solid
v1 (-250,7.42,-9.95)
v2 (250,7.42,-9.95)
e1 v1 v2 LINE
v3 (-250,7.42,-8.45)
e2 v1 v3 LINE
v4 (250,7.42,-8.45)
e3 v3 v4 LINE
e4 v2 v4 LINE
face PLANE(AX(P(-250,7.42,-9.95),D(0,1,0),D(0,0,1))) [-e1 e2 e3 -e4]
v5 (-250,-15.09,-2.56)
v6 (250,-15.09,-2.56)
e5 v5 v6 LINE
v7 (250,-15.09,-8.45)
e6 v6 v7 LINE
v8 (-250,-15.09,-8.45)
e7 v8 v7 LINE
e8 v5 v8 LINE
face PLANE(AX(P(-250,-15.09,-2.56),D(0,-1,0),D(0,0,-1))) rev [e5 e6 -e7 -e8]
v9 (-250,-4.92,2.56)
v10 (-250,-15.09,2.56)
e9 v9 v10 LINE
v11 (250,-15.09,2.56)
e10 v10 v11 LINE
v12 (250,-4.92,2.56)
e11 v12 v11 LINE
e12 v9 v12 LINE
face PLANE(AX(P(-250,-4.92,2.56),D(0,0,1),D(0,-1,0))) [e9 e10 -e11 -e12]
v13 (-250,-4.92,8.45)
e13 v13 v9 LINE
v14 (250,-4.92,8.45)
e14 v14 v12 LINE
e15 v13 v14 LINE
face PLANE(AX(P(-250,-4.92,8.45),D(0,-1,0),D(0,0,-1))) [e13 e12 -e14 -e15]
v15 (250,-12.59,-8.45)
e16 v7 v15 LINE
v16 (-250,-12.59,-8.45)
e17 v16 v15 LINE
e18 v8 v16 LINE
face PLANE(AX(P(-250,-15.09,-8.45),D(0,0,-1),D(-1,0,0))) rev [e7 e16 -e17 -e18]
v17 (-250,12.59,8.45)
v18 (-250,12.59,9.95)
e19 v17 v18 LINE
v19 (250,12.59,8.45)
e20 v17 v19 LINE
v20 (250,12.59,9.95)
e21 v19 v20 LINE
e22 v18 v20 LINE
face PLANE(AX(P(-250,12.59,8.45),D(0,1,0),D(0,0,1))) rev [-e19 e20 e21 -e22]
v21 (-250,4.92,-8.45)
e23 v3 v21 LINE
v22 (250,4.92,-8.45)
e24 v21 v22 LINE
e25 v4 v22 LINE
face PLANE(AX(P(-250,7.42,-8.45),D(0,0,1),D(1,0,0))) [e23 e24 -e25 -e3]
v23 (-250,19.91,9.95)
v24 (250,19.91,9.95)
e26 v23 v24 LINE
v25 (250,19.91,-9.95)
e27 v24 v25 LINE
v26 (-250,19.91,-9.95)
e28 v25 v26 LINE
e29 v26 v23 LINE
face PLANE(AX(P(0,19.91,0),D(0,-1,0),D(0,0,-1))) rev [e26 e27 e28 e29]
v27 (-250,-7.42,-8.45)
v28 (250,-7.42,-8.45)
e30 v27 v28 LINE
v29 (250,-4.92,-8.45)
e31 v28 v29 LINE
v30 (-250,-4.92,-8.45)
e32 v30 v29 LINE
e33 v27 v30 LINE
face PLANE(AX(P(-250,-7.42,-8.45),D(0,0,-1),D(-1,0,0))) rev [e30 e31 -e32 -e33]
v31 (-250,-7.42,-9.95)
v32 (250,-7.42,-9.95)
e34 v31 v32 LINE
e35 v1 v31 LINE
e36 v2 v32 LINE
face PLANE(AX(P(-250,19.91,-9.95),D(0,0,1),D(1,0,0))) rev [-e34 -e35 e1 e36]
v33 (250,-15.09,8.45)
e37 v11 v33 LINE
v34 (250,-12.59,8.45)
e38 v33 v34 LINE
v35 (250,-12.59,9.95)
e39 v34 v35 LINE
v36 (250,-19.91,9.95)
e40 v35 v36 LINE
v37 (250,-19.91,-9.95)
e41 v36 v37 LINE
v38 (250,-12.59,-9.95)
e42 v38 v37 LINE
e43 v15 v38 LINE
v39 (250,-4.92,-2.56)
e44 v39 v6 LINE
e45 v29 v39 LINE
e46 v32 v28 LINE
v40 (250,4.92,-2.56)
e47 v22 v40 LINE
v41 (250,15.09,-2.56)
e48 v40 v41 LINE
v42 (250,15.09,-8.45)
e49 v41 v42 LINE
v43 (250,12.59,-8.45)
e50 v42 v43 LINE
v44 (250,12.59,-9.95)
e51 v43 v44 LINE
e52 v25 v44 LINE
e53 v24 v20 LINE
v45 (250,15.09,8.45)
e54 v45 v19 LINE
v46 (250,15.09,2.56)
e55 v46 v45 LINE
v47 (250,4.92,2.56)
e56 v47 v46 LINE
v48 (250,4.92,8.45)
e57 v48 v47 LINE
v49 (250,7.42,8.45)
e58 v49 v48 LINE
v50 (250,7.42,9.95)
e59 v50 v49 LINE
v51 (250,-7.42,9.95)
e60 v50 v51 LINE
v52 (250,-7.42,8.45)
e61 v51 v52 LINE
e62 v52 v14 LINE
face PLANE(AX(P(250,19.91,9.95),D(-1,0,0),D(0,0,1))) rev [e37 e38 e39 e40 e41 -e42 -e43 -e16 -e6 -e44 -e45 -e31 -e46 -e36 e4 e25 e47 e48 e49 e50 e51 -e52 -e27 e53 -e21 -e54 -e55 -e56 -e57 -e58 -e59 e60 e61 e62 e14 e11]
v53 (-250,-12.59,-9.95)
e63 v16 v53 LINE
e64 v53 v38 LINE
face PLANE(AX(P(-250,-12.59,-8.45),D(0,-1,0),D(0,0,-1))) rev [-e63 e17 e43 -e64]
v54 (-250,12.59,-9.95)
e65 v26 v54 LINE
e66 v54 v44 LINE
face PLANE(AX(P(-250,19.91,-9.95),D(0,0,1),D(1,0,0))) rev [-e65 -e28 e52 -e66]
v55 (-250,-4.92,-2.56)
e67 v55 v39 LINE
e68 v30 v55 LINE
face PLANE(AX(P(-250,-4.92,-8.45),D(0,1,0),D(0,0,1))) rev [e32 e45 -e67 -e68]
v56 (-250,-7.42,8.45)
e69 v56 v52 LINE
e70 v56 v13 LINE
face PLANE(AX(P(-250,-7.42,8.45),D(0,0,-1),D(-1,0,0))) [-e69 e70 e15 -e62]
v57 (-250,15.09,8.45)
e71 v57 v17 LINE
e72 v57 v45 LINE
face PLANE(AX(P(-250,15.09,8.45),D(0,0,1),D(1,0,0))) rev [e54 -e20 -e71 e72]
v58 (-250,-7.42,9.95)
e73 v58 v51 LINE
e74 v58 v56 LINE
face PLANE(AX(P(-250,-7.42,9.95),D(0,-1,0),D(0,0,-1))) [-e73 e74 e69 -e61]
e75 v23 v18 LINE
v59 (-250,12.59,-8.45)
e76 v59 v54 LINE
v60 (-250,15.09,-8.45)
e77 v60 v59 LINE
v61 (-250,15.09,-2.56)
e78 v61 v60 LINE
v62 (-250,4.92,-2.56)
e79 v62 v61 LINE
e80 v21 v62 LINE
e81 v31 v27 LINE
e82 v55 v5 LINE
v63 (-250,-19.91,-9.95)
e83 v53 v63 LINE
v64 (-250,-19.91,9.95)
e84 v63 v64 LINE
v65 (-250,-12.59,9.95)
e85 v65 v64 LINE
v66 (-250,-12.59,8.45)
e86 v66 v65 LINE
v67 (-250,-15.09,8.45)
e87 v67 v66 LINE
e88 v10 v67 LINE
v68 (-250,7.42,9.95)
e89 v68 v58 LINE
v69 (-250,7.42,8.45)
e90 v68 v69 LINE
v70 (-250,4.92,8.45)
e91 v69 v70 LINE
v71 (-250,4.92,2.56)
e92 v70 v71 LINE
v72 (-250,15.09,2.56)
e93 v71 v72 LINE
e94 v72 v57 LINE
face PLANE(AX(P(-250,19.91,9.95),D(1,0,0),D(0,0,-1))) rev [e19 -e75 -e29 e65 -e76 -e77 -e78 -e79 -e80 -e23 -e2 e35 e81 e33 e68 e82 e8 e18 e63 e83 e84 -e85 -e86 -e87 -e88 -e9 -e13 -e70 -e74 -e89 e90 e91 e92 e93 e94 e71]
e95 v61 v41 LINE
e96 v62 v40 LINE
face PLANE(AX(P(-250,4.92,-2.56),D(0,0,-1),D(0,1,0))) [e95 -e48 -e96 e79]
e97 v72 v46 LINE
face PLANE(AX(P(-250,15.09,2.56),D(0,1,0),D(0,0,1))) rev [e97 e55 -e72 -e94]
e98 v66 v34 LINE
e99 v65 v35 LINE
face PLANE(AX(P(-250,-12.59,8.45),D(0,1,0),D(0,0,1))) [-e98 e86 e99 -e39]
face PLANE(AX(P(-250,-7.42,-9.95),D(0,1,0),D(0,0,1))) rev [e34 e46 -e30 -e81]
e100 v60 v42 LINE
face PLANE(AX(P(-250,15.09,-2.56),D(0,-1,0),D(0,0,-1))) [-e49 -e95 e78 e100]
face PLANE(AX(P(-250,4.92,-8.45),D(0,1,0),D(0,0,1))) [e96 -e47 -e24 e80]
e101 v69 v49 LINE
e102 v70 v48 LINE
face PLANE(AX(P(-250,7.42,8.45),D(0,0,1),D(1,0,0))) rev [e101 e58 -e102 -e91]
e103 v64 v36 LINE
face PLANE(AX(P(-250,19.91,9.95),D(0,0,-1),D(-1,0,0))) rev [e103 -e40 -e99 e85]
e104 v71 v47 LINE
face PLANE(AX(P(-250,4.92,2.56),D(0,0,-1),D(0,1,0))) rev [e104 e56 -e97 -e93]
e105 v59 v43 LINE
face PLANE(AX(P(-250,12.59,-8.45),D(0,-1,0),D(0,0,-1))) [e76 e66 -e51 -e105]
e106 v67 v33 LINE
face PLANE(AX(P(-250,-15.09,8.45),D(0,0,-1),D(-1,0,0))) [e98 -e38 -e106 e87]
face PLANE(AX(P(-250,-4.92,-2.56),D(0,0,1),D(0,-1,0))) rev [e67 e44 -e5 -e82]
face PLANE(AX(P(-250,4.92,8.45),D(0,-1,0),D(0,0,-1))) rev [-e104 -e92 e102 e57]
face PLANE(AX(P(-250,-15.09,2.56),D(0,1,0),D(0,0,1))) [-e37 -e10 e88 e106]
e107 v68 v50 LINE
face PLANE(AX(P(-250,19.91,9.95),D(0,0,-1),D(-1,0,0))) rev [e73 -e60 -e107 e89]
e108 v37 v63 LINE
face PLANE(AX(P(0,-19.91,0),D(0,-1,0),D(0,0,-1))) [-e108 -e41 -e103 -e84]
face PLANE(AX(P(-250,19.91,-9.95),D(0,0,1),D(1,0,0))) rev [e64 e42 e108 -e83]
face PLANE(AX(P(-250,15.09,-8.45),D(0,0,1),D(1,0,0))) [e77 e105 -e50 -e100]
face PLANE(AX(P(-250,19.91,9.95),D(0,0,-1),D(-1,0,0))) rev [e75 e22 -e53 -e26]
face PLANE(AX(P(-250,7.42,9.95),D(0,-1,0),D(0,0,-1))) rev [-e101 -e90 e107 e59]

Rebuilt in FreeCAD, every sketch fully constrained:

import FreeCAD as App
import Part
import Sketcher


def add_polygon(sketch, points):
    """Adds a closed chain of lines whose ends are joined by coincident constraints."""
    first, n = sketch.GeometryCount, len(points)
    for a, b in zip(points, points[1:] + points[:1]):
        sketch.addGeometry(Part.LineSegment(App.Vector(*a, 0), App.Vector(*b, 0)), False)
    for i in range(n):
        sketch.addConstraint(Sketcher.Constraint("Coincident", first + i, 2, first + (i + 1) % n, 1))

doc = App.newDocument("Part")
body = doc.addObject("PartDesign::Body", "Body")

# Sketch on XZ plane
sketch1 = body.newObject("Sketcher::SketchObject", "Sketch")
sketch1.AttachmentSupport = (doc.getObject("XZ_Plane"), [""])
sketch1.MapMode = "FlatFace"
add_polygon(sketch1, [(-250, -10), (-250, 10), (250, 10), (250, -10)])  # lines 0-3
sketch1.addConstraint([
    Sketcher.Constraint("Vertical", 0),
    Sketcher.Constraint("Horizontal", 1),
    Sketcher.Constraint("Vertical", 2),
    Sketcher.Constraint("Horizontal", 3),
    Sketcher.Constraint("Symmetric", 0, 2, 2, 2, -1, 1),
    Sketcher.Constraint("DistanceX", 1, 1, 1, 2, 500.0),
    Sketcher.Constraint("DistanceY", 0, 1, 0, 2, 19.9),
])
pad1 = body.newObject("PartDesign::Pad", "Pad")
pad1.Profile = sketch1
pad1.Length = 39.82
pad1.Midplane = True

# Sketch on YZ plane
sketch2 = body.newObject("Sketcher::SketchObject", "Sketch001")
sketch2.AttachmentSupport = (doc.getObject("YZ_Plane"), [""])
sketch2.MapMode = "FlatFace"
sketch2.AttachmentOffset = App.Placement(App.Vector(0, 0, 250), App.Rotation())
add_polygon(sketch2, [(7.4, 9.9), (7.4, 8.4), (4.9, 8.4), (4.9, 2.6), (15.1, 2.6), (15.1, 8.4), (12.6, 8.4), (12.6, 9.9)])  # lines 0-7
sketch2.addConstraint([
    Sketcher.Constraint("Vertical", 0),
    Sketcher.Constraint("Horizontal", 1),
    Sketcher.Constraint("Vertical", 2),
    Sketcher.Constraint("Horizontal", 3),
    Sketcher.Constraint("Vertical", 4),
    Sketcher.Constraint("Horizontal", 5),
    Sketcher.Constraint("Vertical", 6),
    Sketcher.Constraint("Horizontal", 7),
    Sketcher.Constraint("Horizontal", 1, 2, 4, 2),
    Sketcher.Constraint("Equal", 1, 5),
    Sketcher.Constraint("DistanceX", 1, 2, 1, 1, 2.5),
    Sketcher.Constraint("DistanceY", 0, 2, 0, 1, 1.5),
    Sketcher.Constraint("DistanceX", 3, 1, 3, 2, 10.17),
    Sketcher.Constraint("DistanceY", 2, 2, 2, 1, 5.89),
    Sketcher.Constraint("DistanceX", -1, 1, 0, 2, 7.42),
    Sketcher.Constraint("DistanceY", -1, 1, 0, 2, 8.45),
])
pocket1 = body.newObject("PartDesign::Pocket", "Pocket")
pocket1.Profile = sketch2
pocket1.Type = "ThroughAll"
doc.recompute()

mirrored = body.newObject("PartDesign::Mirrored", "Mirrored")
mirrored.Originals = [pocket1]
mirrored.MirrorPlane = (doc.getObject("XY_Plane"), [""])
body.Tip = mirrored
doc.recompute()

mirrored2 = body.newObject("PartDesign::Mirrored", "Mirrored001")
mirrored2.Originals = [pocket1]
mirrored2.MirrorPlane = (doc.getObject("XZ_Plane"), [""])
body.Tip = mirrored2

# Sketch on YZ plane
sketch3 = body.newObject("Sketcher::SketchObject", "Sketch002")
sketch3.AttachmentSupport = (doc.getObject("YZ_Plane"), [""])
sketch3.MapMode = "FlatFace"
sketch3.AttachmentOffset = App.Placement(App.Vector(0, 0, 250), App.Rotation())
add_polygon(sketch3, [(-7.4, -9.9), (-7.4, -8.4), (-4.9, -8.4), (-4.9, -2.6), (-15.1, -2.6), (-15.1, -8.4), (-12.6, -8.4), (-12.6, -9.9)])  # lines 0-7
sketch3.addConstraint([
    Sketcher.Constraint("Vertical", 0),
    Sketcher.Constraint("Horizontal", 1),
    Sketcher.Constraint("Vertical", 2),
    Sketcher.Constraint("Horizontal", 3),
    Sketcher.Constraint("Vertical", 4),
    Sketcher.Constraint("Horizontal", 5),
    Sketcher.Constraint("Vertical", 6),
    Sketcher.Constraint("Horizontal", 7),
    Sketcher.Constraint("Horizontal", 1, 2, 4, 2),
    Sketcher.Constraint("Equal", 1, 5),
    Sketcher.Constraint("DistanceX", 1, 1, 1, 2, 2.5),
    Sketcher.Constraint("DistanceY", 0, 1, 0, 2, 1.5),
    Sketcher.Constraint("DistanceX", 3, 2, 3, 1, 10.17),
    Sketcher.Constraint("DistanceY", 2, 1, 2, 2, 5.89),
    Sketcher.Constraint("DistanceX", 0, 2, -1, 1, 7.42),
    Sketcher.Constraint("DistanceY", 0, 2, -1, 1, 8.45),
])
pocket2 = body.newObject("PartDesign::Pocket", "Pocket001")
pocket2.Profile = sketch3
pocket2.Type = "ThroughAll"

doc.recompute()
